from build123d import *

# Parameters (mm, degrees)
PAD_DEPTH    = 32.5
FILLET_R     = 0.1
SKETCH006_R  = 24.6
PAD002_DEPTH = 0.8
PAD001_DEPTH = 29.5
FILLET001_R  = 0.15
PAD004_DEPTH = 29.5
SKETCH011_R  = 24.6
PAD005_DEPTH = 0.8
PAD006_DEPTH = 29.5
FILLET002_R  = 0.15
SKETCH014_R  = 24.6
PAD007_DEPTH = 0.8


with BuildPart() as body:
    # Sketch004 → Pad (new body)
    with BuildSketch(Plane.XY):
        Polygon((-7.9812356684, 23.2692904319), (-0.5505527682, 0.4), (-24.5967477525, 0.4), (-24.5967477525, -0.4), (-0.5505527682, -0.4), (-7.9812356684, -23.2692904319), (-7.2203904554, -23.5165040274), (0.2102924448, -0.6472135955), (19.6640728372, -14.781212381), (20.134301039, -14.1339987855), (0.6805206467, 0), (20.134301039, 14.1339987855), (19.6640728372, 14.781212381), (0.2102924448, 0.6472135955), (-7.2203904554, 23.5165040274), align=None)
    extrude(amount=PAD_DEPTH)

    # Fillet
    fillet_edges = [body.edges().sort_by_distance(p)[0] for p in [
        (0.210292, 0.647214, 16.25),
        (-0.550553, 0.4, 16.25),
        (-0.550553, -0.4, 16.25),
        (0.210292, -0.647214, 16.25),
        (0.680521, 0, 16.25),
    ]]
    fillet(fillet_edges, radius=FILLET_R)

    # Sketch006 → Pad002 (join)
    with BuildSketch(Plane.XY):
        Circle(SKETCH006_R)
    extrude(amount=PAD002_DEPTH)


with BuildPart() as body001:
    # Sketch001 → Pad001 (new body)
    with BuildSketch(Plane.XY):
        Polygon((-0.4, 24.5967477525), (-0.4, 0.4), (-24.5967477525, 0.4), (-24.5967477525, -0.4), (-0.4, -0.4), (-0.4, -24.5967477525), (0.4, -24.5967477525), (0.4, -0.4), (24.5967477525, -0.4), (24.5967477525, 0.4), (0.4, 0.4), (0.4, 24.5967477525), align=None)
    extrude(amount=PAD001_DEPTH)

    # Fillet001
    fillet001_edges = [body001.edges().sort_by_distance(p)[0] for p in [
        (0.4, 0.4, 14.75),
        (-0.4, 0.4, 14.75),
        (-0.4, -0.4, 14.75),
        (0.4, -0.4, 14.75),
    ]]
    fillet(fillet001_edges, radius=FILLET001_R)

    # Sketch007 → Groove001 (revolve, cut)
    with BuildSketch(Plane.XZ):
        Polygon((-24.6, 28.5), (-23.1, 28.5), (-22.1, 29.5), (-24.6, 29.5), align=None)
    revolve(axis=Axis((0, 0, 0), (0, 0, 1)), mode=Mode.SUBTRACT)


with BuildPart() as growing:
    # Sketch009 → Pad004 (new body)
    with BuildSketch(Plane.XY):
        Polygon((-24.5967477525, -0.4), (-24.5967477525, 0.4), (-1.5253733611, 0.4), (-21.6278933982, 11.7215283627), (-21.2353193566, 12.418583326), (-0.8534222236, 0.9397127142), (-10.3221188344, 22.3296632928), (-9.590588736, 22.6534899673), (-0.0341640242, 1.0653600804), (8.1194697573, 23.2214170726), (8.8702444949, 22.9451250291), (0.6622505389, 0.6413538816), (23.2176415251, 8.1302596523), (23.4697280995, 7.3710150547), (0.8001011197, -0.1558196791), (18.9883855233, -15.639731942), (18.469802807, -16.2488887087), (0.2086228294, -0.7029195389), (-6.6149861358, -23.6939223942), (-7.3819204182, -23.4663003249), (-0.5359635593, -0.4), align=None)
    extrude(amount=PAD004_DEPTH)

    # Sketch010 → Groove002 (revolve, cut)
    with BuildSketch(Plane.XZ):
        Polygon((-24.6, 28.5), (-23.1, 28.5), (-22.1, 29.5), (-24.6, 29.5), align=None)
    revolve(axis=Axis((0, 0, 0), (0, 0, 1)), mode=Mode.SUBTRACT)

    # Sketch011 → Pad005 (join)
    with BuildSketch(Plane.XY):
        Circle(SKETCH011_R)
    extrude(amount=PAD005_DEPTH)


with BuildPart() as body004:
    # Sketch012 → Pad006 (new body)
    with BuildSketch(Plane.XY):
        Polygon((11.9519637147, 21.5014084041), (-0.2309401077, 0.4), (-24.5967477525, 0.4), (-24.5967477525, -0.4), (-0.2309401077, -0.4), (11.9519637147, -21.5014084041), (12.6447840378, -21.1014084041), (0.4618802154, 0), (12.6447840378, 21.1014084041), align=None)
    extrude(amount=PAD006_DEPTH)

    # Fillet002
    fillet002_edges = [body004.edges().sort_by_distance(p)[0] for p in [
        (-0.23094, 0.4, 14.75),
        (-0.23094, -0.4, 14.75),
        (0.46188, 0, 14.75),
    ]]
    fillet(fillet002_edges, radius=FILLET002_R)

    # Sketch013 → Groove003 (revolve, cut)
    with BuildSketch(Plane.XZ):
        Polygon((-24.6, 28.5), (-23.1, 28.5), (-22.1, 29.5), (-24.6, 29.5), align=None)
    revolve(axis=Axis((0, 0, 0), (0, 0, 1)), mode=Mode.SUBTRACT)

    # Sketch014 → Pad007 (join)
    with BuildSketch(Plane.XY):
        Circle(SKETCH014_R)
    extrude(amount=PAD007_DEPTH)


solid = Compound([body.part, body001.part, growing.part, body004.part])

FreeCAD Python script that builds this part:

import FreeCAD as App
import Part
import Sketcher

V = App.Vector
Q = App.Units.Quantity


def edges_at(feature, points):
    """Names of the edges that pass closest to the given points."""
    edges = feature.Shape.Edges
    near = lambda p: min(range(len(edges)), key=lambda i: edges[i].distToShape(Part.Vertex(*p))[0])
    return sorted({f"Edge{near(p) + 1}" for p in points})

doc = App.newDocument("Part")
body = doc.addObject("PartDesign::Body", "Body")

sketch1 = doc.addObject("Sketcher::SketchObject", "Sketch")
body.addObject(sketch1)
sketch1.AttachmentSupport = (doc.XY_Plane, [""])
sketch1.MapMode = "FlatFace"
sketch1.addGeometry([
    Part.LineSegment(V(-8, 23.3, 0), V(-0.6, 0.4, 0)),
    Part.LineSegment(V(-0.6, 0.4, 0), V(-24.6, 0.4, 0)),
    Part.LineSegment(V(-24.6, 0.4, 0), V(-24.6, -0.4, 0)),
    Part.LineSegment(V(-24.6, -0.4, 0), V(-0.6, -0.4, 0)),
    Part.LineSegment(V(-0.6, -0.4, 0), V(-8, -23.3, 0)),
    Part.LineSegment(V(-8, -23.3, 0), V(-7.2, -23.5, 0)),
    Part.LineSegment(V(-7.2, -23.5, 0), V(0.2, -0.6, 0)),
    Part.LineSegment(V(0.2, -0.6, 0), V(19.7, -14.8, 0)),
    Part.LineSegment(V(19.7, -14.8, 0), V(20.1, -14.1, 0)),
    Part.LineSegment(V(20.1, -14.1, 0), V(0.7, 0, 0)),
    Part.LineSegment(V(0.7, 0, 0), V(20.1, 14.1, 0)),
    Part.LineSegment(V(20.1, 14.1, 0), V(19.7, 14.8, 0)),
    Part.LineSegment(V(19.7, 14.8, 0), V(0.2, 0.6, 0)),
    Part.LineSegment(V(0.2, 0.6, 0), V(-7.2, 23.5, 0)),
    Part.LineSegment(V(-7.2, 23.5, 0), V(-8, 23.3, 0)),
], False)
sketch1.addConstraint([
    Sketcher.Constraint("Coincident", 0, 2, 1, 1),
    Sketcher.Constraint("Coincident", 1, 2, 2, 1),
    Sketcher.Constraint("Coincident", 2, 2, 3, 1),
    Sketcher.Constraint("Coincident", 3, 2, 4, 1),
    Sketcher.Constraint("Coincident", 4, 2, 5, 1),
    Sketcher.Constraint("Coincident", 5, 2, 6, 1),
    Sketcher.Constraint("Coincident", 6, 2, 7, 1),
    Sketcher.Constraint("Coincident", 7, 2, 8, 1),
    Sketcher.Constraint("Coincident", 8, 2, 9, 1),
    Sketcher.Constraint("Coincident", 9, 2, 10, 1),
    Sketcher.Constraint("Coincident", 10, 2, 11, 1),
    Sketcher.Constraint("Coincident", 11, 2, 12, 1),
    Sketcher.Constraint("Coincident", 12, 2, 13, 1),
    Sketcher.Constraint("Coincident", 13, 2, 14, 1),
    Sketcher.Constraint("Coincident", 14, 2, 0, 1),
    Sketcher.Constraint("Horizontal", 1),
    Sketcher.Constraint("Vertical", 2),
    Sketcher.Constraint("Horizontal", 3),
    Sketcher.Constraint("Symmetric", 0, 2, 3, 2, -1),
    Sketcher.Constraint("Symmetric", 8, 2, 10, 2, -1),
    Sketcher.Constraint("Symmetric", 7, 2, 11, 2, -1),
    Sketcher.Constraint("Symmetric", 6, 2, 12, 2, -1),
    Sketcher.Constraint("Symmetric", 5, 2, 13, 2, -1),
    Sketcher.Constraint("Symmetric", 4, 2, 14, 2, -1),
    Sketcher.Constraint("PointOnObject", 9, 2, -1),
    Sketcher.Constraint("Perpendicular", 4, 5),
    Sketcher.Constraint("Perpendicular", 5, 6),
    Sketcher.Constraint("Perpendicular", 7, 8),
    Sketcher.Constraint("Perpendicular", 8, 9),
    Sketcher.Constraint("Equal", 4, 6),
    Sketcher.Constraint("Equal", 6, 7),
    Sketcher.Constraint("Equal", 5, 8),
    Sketcher.Constraint("Equal", 7, 9),
    Sketcher.Constraint("Angle", 0, Q("-72 deg")),
    Sketcher.Constraint("Angle", 7, Q("-36 deg")),
    Sketcher.Constraint("DistanceY", 2, 2, 2, 1, 0.8),
    Sketcher.Constraint("DistanceY", 8, 2, -1, 1, 14.133999),
    Sketcher.Constraint("DistanceX", -1, 1, 8, 2, 20.134301),
    Sketcher.Constraint("DistanceX", 1, 2, 1, 1, 24.046195),
])
pad1 = doc.addObject("PartDesign::Pad", "Pad")
body.addObject(pad1)
pad1.Profile = sketch1
pad1.Length = 32.5
doc.recompute()

fillet = doc.addObject("PartDesign::Fillet", "Fillet")
body.addObject(fillet)
fillet.Base = (pad1, edges_at(pad1, [
    (0.21, 0.647, 16.25),
    (-0.551, 0.4, 16.25),
    (-0.551, -0.4, 16.25),
    (0.21, -0.647, 16.25),
    (0.681, 0, 16.25),
]))
fillet.Radius = 0.1

sketch2 = doc.addObject("Sketcher::SketchObject", "Sketch001")
body.addObject(sketch2)
sketch2.AttachmentSupport = (doc.XY_Plane, [""])
sketch2.MapMode = "FlatFace"
sketch2.addGeometry(Part.Circle(V(0, 0, 0), V(0, 0, 1), 25), False)
sketch2.addConstraint([
    Sketcher.Constraint("Coincident", 0, 3, -1, 1),
    Sketcher.Constraint("Diameter", 0, 49.2),
])
pad2 = doc.addObject("PartDesign::Pad", "Pad001")
body.addObject(pad2)
pad2.Profile = sketch2
pad2.Length = 0.8
body2 = doc.addObject("PartDesign::Body", "Body001")

sketch3 = doc.addObject("Sketcher::SketchObject", "Sketch002")
body2.addObject(sketch3)
sketch3.AttachmentSupport = (doc.getObject("XY_Plane001"), [""])
sketch3.MapMode = "FlatFace"
sketch3.addGeometry([
    Part.LineSegment(V(-0.4, 24.6, 0), V(-0.4, 0.4, 0)),
    Part.LineSegment(V(-0.4, 0.4, 0), V(-24.6, 0.4, 0)),
    Part.LineSegment(V(-24.6, 0.4, 0), V(-24.6, -0.4, 0)),
    Part.LineSegment(V(-24.6, -0.4, 0), V(-0.4, -0.4, 0)),
    Part.LineSegment(V(-0.4, -0.4, 0), V(-0.4, -24.6, 0)),
    Part.LineSegment(V(-0.4, -24.6, 0), V(0.4, -24.6, 0)),
    Part.LineSegment(V(0.4, -24.6, 0), V(0.4, -0.4, 0)),
    Part.LineSegment(V(0.4, -0.4, 0), V(24.6, -0.4, 0)),
    Part.LineSegment(V(24.6, -0.4, 0), V(24.6, 0.4, 0)),
    Part.LineSegment(V(24.6, 0.4, 0), V(0.4, 0.4, 0)),
    Part.LineSegment(V(0.4, 0.4, 0), V(0.4, 24.6, 0)),
    Part.LineSegment(V(0.4, 24.6, 0), V(-0.4, 24.6, 0)),
], False)
sketch3.addConstraint([
    Sketcher.Constraint("Coincident", 0, 2, 1, 1),
    Sketcher.Constraint("Coincident", 1, 2, 2, 1),
    Sketcher.Constraint("Coincident", 2, 2, 3, 1),
    Sketcher.Constraint("Coincident", 3, 2, 4, 1),
    Sketcher.Constraint("Coincident", 4, 2, 5, 1),
    Sketcher.Constraint("Coincident", 5, 2, 6, 1),
    Sketcher.Constraint("Coincident", 6, 2, 7, 1),
    Sketcher.Constraint("Coincident", 7, 2, 8, 1),
    Sketcher.Constraint("Coincident", 8, 2, 9, 1),
    Sketcher.Constraint("Coincident", 9, 2, 10, 1),
    Sketcher.Constraint("Coincident", 10, 2, 11, 1),
    Sketcher.Constraint("Coincident", 11, 2, 0, 1),
    Sketcher.Constraint("Vertical", 0),
    Sketcher.Constraint("Horizontal", 1),
    Sketcher.Constraint("Vertical", 2),
    Sketcher.Constraint("Horizontal", 3),
    Sketcher.Constraint("Vertical", 4),
    Sketcher.Constraint("Horizontal", 5),
    Sketcher.Constraint("Vertical", 6),
    Sketcher.Constraint("Horizontal", 7),
    Sketcher.Constraint("Vertical", 8),
    Sketcher.Constraint("Horizontal", 9),
    Sketcher.Constraint("Vertical", 10),
    Sketcher.Constraint("Horizontal", 11),
    Sketcher.Constraint("Symmetric", 0, 2, 6, 2, -1, 1),
    Sketcher.Constraint("Symmetric", 2, 2, 8, 2, -1, 1),
    Sketcher.Constraint("Symmetric", 4, 2, 10, 2, -1, 1),
    Sketcher.Constraint("Symmetric", 3, 2, 6, 2, -2),
    Sketcher.Constraint("Equal", 9, 0),
    Sketcher.Constraint("Equal", 11, 2),
    Sketcher.Constraint("DistanceX", 5, 1, 5, 2, 0.8),
    Sketcher.Constraint("DistanceX", 1, 2, 1, 1, 24.196748),
])
pad3 = doc.addObject("PartDesign::Pad", "Pad002")
body2.addObject(pad3)
pad3.Profile = sketch3
pad3.Length = 29.5
doc.recompute()

fillet2 = doc.addObject("PartDesign::Fillet", "Fillet001")
body2.addObject(fillet2)
fillet2.Base = (pad3, edges_at(pad3, [
    (0.4, 0.4, 14.75),
    (-0.4, 0.4, 14.75),
    (-0.4, -0.4, 14.75),
    (0.4, -0.4, 14.75),
]))
fillet2.Radius = 0.15

sketch4 = doc.addObject("Sketcher::SketchObject", "Sketch003")
body2.addObject(sketch4)
sketch4.AttachmentSupport = (doc.getObject("XZ_Plane001"), [""])
sketch4.MapMode = "FlatFace"
sketch4.addGeometry([
    Part.LineSegment(V(-24.6, 28.5, 0), V(-23.1, 28.5, 0)),
    Part.LineSegment(V(-23.1, 28.5, 0), V(-22.1, 29.5, 0)),
    Part.LineSegment(V(-22.1, 29.5, 0), V(-24.6, 29.5, 0)),
    Part.LineSegment(V(-24.6, 29.5, 0), V(-24.6, 28.5, 0)),
], False)
sketch4.addConstraint([
    Sketcher.Constraint("Coincident", 0, 2, 1, 1),
    Sketcher.Constraint("Coincident", 1, 2, 2, 1),
    Sketcher.Constraint("Coincident", 2, 2, 3, 1),
    Sketcher.Constraint("Coincident", 3, 2, 0, 1),
    Sketcher.Constraint("Horizontal", 0),
    Sketcher.Constraint("Horizontal", 2),
    Sketcher.Constraint("Vertical", 3),
    Sketcher.Constraint("DistanceY", 3, 2, 3, 1, 1.0),
    Sketcher.Constraint("Angle", 1, Q("45 deg")),
    Sketcher.Constraint("DistanceX", 0, 1, 0, 2, 1.5),
    Sketcher.Constraint("DistanceX", 0, 2, -1, 1, 23.1),
    Sketcher.Constraint("DistanceY", -1, 1, 0, 2, 28.5),
])
groove = doc.addObject("PartDesign::Groove", "Groove")
body2.addObject(groove)
groove.Profile = sketch4
groove.ReferenceAxis = (sketch4, ["V_Axis"])
groove.Angle = 360
body3 = doc.addObject("PartDesign::Body", "Body002")

sketch5 = doc.addObject("Sketcher::SketchObject", "Sketch004")
body3.addObject(sketch5)
sketch5.AttachmentSupport = (doc.getObject("XY_Plane002"), [""])
sketch5.MapMode = "FlatFace"
sketch5.addGeometry([
    Part.LineSegment(V(-24.596748, 0.4, 0), V(-24.596748, -0.4, 0)),
    Part.LineSegment(V(-24.596748, -0.4, 0), V(-0.535964, -0.4, 0)),
    Part.LineSegment(V(-0.535964, -0.4, 0), V(-7.38192, -23.4663, 0)),
    Part.LineSegment(V(-7.38192, -23.4663, 0), V(-6.614986, -23.693922, 0)),
    Part.LineSegment(V(-6.614986, -23.693922, 0), V(0.208623, -0.70292, 0)),
    Part.LineSegment(V(0.208623, -0.70292, 0), V(18.469803, -16.248889, 0)),
    Part.LineSegment(V(18.469803, -16.248889, 0), V(18.988386, -15.639732, 0)),
    Part.LineSegment(V(18.988386, -15.639732, 0), V(0.800101, -0.15582, 0)),
    Part.LineSegment(V(0.800101, -0.15582, 0), V(23.469728, 7.371015, 0)),
    Part.LineSegment(V(23.469728, 7.371015, 0), V(23.217642, 8.13026, 0)),
    Part.LineSegment(V(23.217642, 8.13026, 0), V(0.662251, 0.641354, 0)),
    Part.LineSegment(V(0.662251, 0.641354, 0), V(8.870244, 22.945125, 0)),
    Part.LineSegment(V(8.870244, 22.945125, 0), V(8.11947, 23.221417, 0)),
    Part.LineSegment(V(8.11947, 23.221417, 0), V(-0.034164, 1.06536, 0)),
    Part.LineSegment(V(-0.034164, 1.06536, 0), V(-9.590589, 22.65349, 0)),
    Part.LineSegment(V(-9.590589, 22.65349, 0), V(-10.322119, 22.329663, 0)),
    Part.LineSegment(V(-10.322119, 22.329663, 0), V(-0.853422, 0.939713, 0)),
    Part.LineSegment(V(-0.853422, 0.939713, 0), V(-21.235319, 12.418583, 0)),
    Part.LineSegment(V(-21.235319, 12.418583, 0), V(-21.627893, 11.721528, 0)),
    Part.LineSegment(V(-21.627893, 11.721528, 0), V(-1.525373, 0.4, 0)),
    Part.LineSegment(V(-1.525373, 0.4, 0), V(-24.596748, 0.4, 0)),
], False)
sketch5.addConstraint([
    Sketcher.Constraint("Coincident", 0, 2, 1, 1),
    Sketcher.Constraint("Coincident", 1, 2, 2, 1),
    Sketcher.Constraint("Coincident", 2, 2, 3, 1),
    Sketcher.Constraint("Coincident", 3, 2, 4, 1),
    Sketcher.Constraint("Coincident", 4, 2, 5, 1),
    Sketcher.Constraint("Coincident", 5, 2, 6, 1),
    Sketcher.Constraint("Coincident", 6, 2, 7, 1),
    Sketcher.Constraint("Coincident", 7, 2, 8, 1),
    Sketcher.Constraint("Coincident", 8, 2, 9, 1),
    Sketcher.Constraint("Coincident", 9, 2, 10, 1),
    Sketcher.Constraint("Coincident", 10, 2, 11, 1),
    Sketcher.Constraint("Coincident", 11, 2, 12, 1),
    Sketcher.Constraint("Coincident", 12, 2, 13, 1),
    Sketcher.Constraint("Coincident", 13, 2, 14, 1),
    Sketcher.Constraint("Coincident", 14, 2, 15, 1),
    Sketcher.Constraint("Coincident", 15, 2, 16, 1),
    Sketcher.Constraint("Coincident", 16, 2, 17, 1),
    Sketcher.Constraint("Coincident", 17, 2, 18, 1),
    Sketcher.Constraint("Coincident", 18, 2, 19, 1),
    Sketcher.Constraint("Coincident", 19, 2, 20, 1),
    Sketcher.Constraint("Coincident", 20, 2, 0, 1),
    Sketcher.Constraint("Vertical", 0),
    Sketcher.Constraint("Horizontal", 1),
    Sketcher.Constraint("Horizontal", 20),
    Sketcher.Constraint("DistanceY", 0, 2, 0, 1, 0.8),
    Sketcher.Constraint("Distance", 3, 0.8),
    Sketcher.Constraint("Distance", 6, 0.8),
    Sketcher.Constraint("Distance", 9, 0.8),
    Sketcher.Constraint("Distance", 12, 0.8),
    Sketcher.Constraint("Distance", 15, 0.8),
    Sketcher.Constraint("Distance", 18, 0.8),
    Sketcher.Constraint("DistanceY", 0, 2, -1, 1, 0.4),
    Sketcher.Constraint("DistanceY", 2, 2, -1, 1, 23.4663),
    Sketcher.Constraint("DistanceX", -1, 1, 7, 2, 0.800101),
    Sketcher.Constraint("DistanceY", 4, 2, 7, 2, 0.5471),
    Sketcher.Constraint("DistanceX", 7, 2, 5, 2, 17.669702),
    Sketcher.Constraint("DistanceX", 1, 2, 13, 2, 0.5018),
    Sketcher.Constraint("DistanceX", 17, 2, 15, 2, 10.913201),
    Sketcher.Constraint("Distance", 4, 23.98224),
    Sketcher.Constraint("Distance", 5, 23.98224),
    Sketcher.Constraint("Distance", 10, 23.766139),
    Sketcher.Constraint("Distance", 11, 23.766139),
    Sketcher.Constraint("Distance", 13, 23.60874),
    Sketcher.Constraint("Distance", 14, 23.60874),
    Sketcher.Constraint("Distance", 16, 23.392011),
    Sketcher.Constraint("Distance", 17, 23.392011),
    Sketcher.Constraint("DistanceX", 1, 1, 1, 2, 24.060784),
    Sketcher.Constraint("DistanceX", 20, 2, 20, 1, 23.071374),
    Sketcher.Constraint("DistanceX", 2, 2, -1, 1, 7.38192),
    Sketcher.Constraint("DistanceY", 4, 2, -1, 1, 0.70292),
    Sketcher.Constraint("DistanceY", 5, 2, -1, 1, 16.248889),
    Sketcher.Constraint("DistanceY", 6, 2, -1, 1, 15.639732),
    Sketcher.Constraint("DistanceX", -1, 1, 8, 2, 23.469728),
    Sketcher.Constraint("DistanceX", -1, 1, 9, 2, 23.217642),
    Sketcher.Constraint("DistanceY", -1, 1, 9, 2, 8.13026),
    Sketcher.Constraint("DistanceX", -1, 1, 10, 2, 0.662251),
    Sketcher.Constraint("DistanceX", -1, 1, 12, 2, 8.11947),
    Sketcher.Constraint("DistanceY", -1, 1, 13, 2, 1.06536),
    Sketcher.Constraint("DistanceX", 14, 2, -1, 1, 9.590589),
    Sketcher.Constraint("DistanceY", -1, 1, 14, 2, 22.65349),
    Sketcher.Constraint("DistanceX", 15, 2, -1, 1, 10.322119),
    Sketcher.Constraint("DistanceY", -1, 1, 18, 2, 11.721528),
    Sketcher.Constraint("DistanceX", 16, 2, 13, 2, 0.819258),
])
pad4 = doc.addObject("PartDesign::Pad", "Pad003")
body3.addObject(pad4)
pad4.Profile = sketch5
pad4.Length = 29.5

sketch6 = doc.addObject("Sketcher::SketchObject", "Sketch005")
body3.addObject(sketch6)
sketch6.AttachmentSupport = (doc.getObject("XZ_Plane002"), [""])
sketch6.MapMode = "FlatFace"
sketch6.addGeometry([
    Part.LineSegment(V(-24.6, 28.5, 0), V(-23.1, 28.5, 0)),
    Part.LineSegment(V(-23.1, 28.5, 0), V(-22.1, 29.5, 0)),
    Part.LineSegment(V(-22.1, 29.5, 0), V(-24.6, 29.5, 0)),
    Part.LineSegment(V(-24.6, 29.5, 0), V(-24.6, 28.5, 0)),
], False)
sketch6.addConstraint([
    Sketcher.Constraint("Coincident", 0, 2, 1, 1),
    Sketcher.Constraint("Coincident", 1, 2, 2, 1),
    Sketcher.Constraint("Coincident", 2, 2, 3, 1),
    Sketcher.Constraint("Coincident", 3, 2, 0, 1),
    Sketcher.Constraint("Horizontal", 0),
    Sketcher.Constraint("Horizontal", 2),
    Sketcher.Constraint("Vertical", 3),
    Sketcher.Constraint("DistanceY", 3, 2, 3, 1, 1.0),
    Sketcher.Constraint("Angle", 1, Q("45 deg")),
    Sketcher.Constraint("DistanceX", 0, 1, 0, 2, 1.5),
    Sketcher.Constraint("DistanceX", 0, 2, -1, 1, 23.1),
    Sketcher.Constraint("DistanceY", -1, 1, 0, 2, 28.5),
])
groove2 = doc.addObject("PartDesign::Groove", "Groove001")
body3.addObject(groove2)
groove2.Profile = sketch6
groove2.ReferenceAxis = (sketch6, ["V_Axis"])
groove2.Angle = 360

sketch7 = doc.addObject("Sketcher::SketchObject", "Sketch006")
body3.addObject(sketch7)
sketch7.AttachmentSupport = (doc.getObject("XY_Plane002"), [""])
sketch7.MapMode = "FlatFace"
sketch7.addGeometry(Part.Circle(V(0, 0, 0), V(0, 0, 1), 25), False)
sketch7.addConstraint([
    Sketcher.Constraint("Coincident", 0, 3, -1, 1),
    Sketcher.Constraint("Diameter", 0, 49.2),
])
pad5 = doc.addObject("PartDesign::Pad", "Pad004")
body3.addObject(pad5)
pad5.Profile = sketch7
pad5.Length = 0.8
body4 = doc.addObject("PartDesign::Body", "Body003")

sketch8 = doc.addObject("Sketcher::SketchObject", "Sketch007")
body4.addObject(sketch8)
sketch8.AttachmentSupport = (doc.getObject("XY_Plane003"), [""])
sketch8.MapMode = "FlatFace"
sketch8.addGeometry([
    Part.LineSegment(V(12, 21.5, 0), V(-0.2, 0.4, 0)),
    Part.LineSegment(V(-0.2, 0.4, 0), V(-24.6, 0.4, 0)),
    Part.LineSegment(V(-24.6, 0.4, 0), V(-24.6, -0.4, 0)),
    Part.LineSegment(V(-24.6, -0.4, 0), V(-0.2, -0.4, 0)),
    Part.LineSegment(V(-0.2, -0.4, 0), V(12, -21.5, 0)),
    Part.LineSegment(V(12, -21.5, 0), V(12.6, -21.1, 0)),
    Part.LineSegment(V(12.6, -21.1, 0), V(0.5, 0, 0)),
    Part.LineSegment(V(0.5, 0, 0), V(12.6, 21.1, 0)),
    Part.LineSegment(V(12.6, 21.1, 0), V(12, 21.5, 0)),
], False)
sketch8.addConstraint([
    Sketcher.Constraint("Coincident", 0, 2, 1, 1),
    Sketcher.Constraint("Coincident", 1, 2, 2, 1),
    Sketcher.Constraint("Coincident", 2, 2, 3, 1),
    Sketcher.Constraint("Coincident", 3, 2, 4, 1),
    Sketcher.Constraint("Coincident", 4, 2, 5, 1),
    Sketcher.Constraint("Coincident", 5, 2, 6, 1),
    Sketcher.Constraint("Coincident", 6, 2, 7, 1),
    Sketcher.Constraint("Coincident", 7, 2, 8, 1),
    Sketcher.Constraint("Coincident", 8, 2, 0, 1),
    Sketcher.Constraint("Horizontal", 1),
    Sketcher.Constraint("Vertical", 2),
    Sketcher.Constraint("Horizontal", 3),
    Sketcher.Constraint("Symmetric", 0, 2, 3, 2, -1),
    Sketcher.Constraint("Symmetric", 5, 2, 7, 2, -1),
    Sketcher.Constraint("Symmetric", 4, 2, 8, 2, -1),
    Sketcher.Constraint("PointOnObject", 6, 2, -1),
    Sketcher.Constraint("Perpendicular", 4, 5),
    Sketcher.Constraint("Perpendicular", 5, 6),
    Sketcher.Constraint("Equal", 4, 6),
    Sketcher.Constraint("Angle", 0, Q("-120 deg")),
    Sketcher.Constraint("DistanceY", 2, 2, 2, 1, 0.8),
    Sketcher.Constraint("DistanceX", 1, 2, 1, 1, 24.365808),
    Sketcher.Constraint("DistanceX", 0, 2, -1, 1, 0.23094),
    Sketcher.Constraint("DistanceY", 4, 2, -1, 1, 21.501408),
])
pad6 = doc.addObject("PartDesign::Pad", "Pad005")
body4.addObject(pad6)
pad6.Profile = sketch8
pad6.Length = 29.5
doc.recompute()

fillet3 = doc.addObject("PartDesign::Fillet", "Fillet002")
body4.addObject(fillet3)
fillet3.Base = (pad6, edges_at(pad6, [(-0.231, 0.4, 14.75), (-0.231, -0.4, 14.75), (0.462, 0, 14.75)]))
fillet3.Radius = 0.15

sketch9 = doc.addObject("Sketcher::SketchObject", "Sketch008")
body4.addObject(sketch9)
sketch9.AttachmentSupport = (doc.getObject("XZ_Plane003"), [""])
sketch9.MapMode = "FlatFace"
sketch9.addGeometry([
    Part.LineSegment(V(-24.6, 28.5, 0), V(-23.1, 28.5, 0)),
    Part.LineSegment(V(-23.1, 28.5, 0), V(-22.1, 29.5, 0)),
    Part.LineSegment(V(-22.1, 29.5, 0), V(-24.6, 29.5, 0)),
    Part.LineSegment(V(-24.6, 29.5, 0), V(-24.6, 28.5, 0)),
], False)
sketch9.addConstraint([
    Sketcher.Constraint("Coincident", 0, 2, 1, 1),
    Sketcher.Constraint("Coincident", 1, 2, 2, 1),
    Sketcher.Constraint("Coincident", 2, 2, 3, 1),
    Sketcher.Constraint("Coincident", 3, 2, 0, 1),
    Sketcher.Constraint("Horizontal", 0),
    Sketcher.Constraint("Horizontal", 2),
    Sketcher.Constraint("Vertical", 3),
    Sketcher.Constraint("DistanceY", 3, 2, 3, 1, 1.0),
    Sketcher.Constraint("Angle", 1, Q("45 deg")),
    Sketcher.Constraint("DistanceX", 0, 1, 0, 2, 1.5),
    Sketcher.Constraint("DistanceX", 0, 2, -1, 1, 23.1),
    Sketcher.Constraint("DistanceY", -1, 1, 0, 2, 28.5),
])
groove3 = doc.addObject("PartDesign::Groove", "Groove002")
body4.addObject(groove3)
groove3.Profile = sketch9
groove3.ReferenceAxis = (sketch9, ["V_Axis"])
groove3.Angle = 360

sketch10 = doc.addObject("Sketcher::SketchObject", "Sketch009")
body4.addObject(sketch10)
sketch10.AttachmentSupport = (doc.getObject("XY_Plane003"), [""])
sketch10.MapMode = "FlatFace"
sketch10.addGeometry(Part.Circle(V(0, 0, 0), V(0, 0, 1), 25), False)
sketch10.addConstraint([
    Sketcher.Constraint("Coincident", 0, 3, -1, 1),
    Sketcher.Constraint("Diameter", 0, 49.2),
])
pad7 = doc.addObject("PartDesign::Pad", "Pad006")
body4.addObject(pad7)
pad7.Profile = sketch10
pad7.Length = 0.8

doc.recompute()
